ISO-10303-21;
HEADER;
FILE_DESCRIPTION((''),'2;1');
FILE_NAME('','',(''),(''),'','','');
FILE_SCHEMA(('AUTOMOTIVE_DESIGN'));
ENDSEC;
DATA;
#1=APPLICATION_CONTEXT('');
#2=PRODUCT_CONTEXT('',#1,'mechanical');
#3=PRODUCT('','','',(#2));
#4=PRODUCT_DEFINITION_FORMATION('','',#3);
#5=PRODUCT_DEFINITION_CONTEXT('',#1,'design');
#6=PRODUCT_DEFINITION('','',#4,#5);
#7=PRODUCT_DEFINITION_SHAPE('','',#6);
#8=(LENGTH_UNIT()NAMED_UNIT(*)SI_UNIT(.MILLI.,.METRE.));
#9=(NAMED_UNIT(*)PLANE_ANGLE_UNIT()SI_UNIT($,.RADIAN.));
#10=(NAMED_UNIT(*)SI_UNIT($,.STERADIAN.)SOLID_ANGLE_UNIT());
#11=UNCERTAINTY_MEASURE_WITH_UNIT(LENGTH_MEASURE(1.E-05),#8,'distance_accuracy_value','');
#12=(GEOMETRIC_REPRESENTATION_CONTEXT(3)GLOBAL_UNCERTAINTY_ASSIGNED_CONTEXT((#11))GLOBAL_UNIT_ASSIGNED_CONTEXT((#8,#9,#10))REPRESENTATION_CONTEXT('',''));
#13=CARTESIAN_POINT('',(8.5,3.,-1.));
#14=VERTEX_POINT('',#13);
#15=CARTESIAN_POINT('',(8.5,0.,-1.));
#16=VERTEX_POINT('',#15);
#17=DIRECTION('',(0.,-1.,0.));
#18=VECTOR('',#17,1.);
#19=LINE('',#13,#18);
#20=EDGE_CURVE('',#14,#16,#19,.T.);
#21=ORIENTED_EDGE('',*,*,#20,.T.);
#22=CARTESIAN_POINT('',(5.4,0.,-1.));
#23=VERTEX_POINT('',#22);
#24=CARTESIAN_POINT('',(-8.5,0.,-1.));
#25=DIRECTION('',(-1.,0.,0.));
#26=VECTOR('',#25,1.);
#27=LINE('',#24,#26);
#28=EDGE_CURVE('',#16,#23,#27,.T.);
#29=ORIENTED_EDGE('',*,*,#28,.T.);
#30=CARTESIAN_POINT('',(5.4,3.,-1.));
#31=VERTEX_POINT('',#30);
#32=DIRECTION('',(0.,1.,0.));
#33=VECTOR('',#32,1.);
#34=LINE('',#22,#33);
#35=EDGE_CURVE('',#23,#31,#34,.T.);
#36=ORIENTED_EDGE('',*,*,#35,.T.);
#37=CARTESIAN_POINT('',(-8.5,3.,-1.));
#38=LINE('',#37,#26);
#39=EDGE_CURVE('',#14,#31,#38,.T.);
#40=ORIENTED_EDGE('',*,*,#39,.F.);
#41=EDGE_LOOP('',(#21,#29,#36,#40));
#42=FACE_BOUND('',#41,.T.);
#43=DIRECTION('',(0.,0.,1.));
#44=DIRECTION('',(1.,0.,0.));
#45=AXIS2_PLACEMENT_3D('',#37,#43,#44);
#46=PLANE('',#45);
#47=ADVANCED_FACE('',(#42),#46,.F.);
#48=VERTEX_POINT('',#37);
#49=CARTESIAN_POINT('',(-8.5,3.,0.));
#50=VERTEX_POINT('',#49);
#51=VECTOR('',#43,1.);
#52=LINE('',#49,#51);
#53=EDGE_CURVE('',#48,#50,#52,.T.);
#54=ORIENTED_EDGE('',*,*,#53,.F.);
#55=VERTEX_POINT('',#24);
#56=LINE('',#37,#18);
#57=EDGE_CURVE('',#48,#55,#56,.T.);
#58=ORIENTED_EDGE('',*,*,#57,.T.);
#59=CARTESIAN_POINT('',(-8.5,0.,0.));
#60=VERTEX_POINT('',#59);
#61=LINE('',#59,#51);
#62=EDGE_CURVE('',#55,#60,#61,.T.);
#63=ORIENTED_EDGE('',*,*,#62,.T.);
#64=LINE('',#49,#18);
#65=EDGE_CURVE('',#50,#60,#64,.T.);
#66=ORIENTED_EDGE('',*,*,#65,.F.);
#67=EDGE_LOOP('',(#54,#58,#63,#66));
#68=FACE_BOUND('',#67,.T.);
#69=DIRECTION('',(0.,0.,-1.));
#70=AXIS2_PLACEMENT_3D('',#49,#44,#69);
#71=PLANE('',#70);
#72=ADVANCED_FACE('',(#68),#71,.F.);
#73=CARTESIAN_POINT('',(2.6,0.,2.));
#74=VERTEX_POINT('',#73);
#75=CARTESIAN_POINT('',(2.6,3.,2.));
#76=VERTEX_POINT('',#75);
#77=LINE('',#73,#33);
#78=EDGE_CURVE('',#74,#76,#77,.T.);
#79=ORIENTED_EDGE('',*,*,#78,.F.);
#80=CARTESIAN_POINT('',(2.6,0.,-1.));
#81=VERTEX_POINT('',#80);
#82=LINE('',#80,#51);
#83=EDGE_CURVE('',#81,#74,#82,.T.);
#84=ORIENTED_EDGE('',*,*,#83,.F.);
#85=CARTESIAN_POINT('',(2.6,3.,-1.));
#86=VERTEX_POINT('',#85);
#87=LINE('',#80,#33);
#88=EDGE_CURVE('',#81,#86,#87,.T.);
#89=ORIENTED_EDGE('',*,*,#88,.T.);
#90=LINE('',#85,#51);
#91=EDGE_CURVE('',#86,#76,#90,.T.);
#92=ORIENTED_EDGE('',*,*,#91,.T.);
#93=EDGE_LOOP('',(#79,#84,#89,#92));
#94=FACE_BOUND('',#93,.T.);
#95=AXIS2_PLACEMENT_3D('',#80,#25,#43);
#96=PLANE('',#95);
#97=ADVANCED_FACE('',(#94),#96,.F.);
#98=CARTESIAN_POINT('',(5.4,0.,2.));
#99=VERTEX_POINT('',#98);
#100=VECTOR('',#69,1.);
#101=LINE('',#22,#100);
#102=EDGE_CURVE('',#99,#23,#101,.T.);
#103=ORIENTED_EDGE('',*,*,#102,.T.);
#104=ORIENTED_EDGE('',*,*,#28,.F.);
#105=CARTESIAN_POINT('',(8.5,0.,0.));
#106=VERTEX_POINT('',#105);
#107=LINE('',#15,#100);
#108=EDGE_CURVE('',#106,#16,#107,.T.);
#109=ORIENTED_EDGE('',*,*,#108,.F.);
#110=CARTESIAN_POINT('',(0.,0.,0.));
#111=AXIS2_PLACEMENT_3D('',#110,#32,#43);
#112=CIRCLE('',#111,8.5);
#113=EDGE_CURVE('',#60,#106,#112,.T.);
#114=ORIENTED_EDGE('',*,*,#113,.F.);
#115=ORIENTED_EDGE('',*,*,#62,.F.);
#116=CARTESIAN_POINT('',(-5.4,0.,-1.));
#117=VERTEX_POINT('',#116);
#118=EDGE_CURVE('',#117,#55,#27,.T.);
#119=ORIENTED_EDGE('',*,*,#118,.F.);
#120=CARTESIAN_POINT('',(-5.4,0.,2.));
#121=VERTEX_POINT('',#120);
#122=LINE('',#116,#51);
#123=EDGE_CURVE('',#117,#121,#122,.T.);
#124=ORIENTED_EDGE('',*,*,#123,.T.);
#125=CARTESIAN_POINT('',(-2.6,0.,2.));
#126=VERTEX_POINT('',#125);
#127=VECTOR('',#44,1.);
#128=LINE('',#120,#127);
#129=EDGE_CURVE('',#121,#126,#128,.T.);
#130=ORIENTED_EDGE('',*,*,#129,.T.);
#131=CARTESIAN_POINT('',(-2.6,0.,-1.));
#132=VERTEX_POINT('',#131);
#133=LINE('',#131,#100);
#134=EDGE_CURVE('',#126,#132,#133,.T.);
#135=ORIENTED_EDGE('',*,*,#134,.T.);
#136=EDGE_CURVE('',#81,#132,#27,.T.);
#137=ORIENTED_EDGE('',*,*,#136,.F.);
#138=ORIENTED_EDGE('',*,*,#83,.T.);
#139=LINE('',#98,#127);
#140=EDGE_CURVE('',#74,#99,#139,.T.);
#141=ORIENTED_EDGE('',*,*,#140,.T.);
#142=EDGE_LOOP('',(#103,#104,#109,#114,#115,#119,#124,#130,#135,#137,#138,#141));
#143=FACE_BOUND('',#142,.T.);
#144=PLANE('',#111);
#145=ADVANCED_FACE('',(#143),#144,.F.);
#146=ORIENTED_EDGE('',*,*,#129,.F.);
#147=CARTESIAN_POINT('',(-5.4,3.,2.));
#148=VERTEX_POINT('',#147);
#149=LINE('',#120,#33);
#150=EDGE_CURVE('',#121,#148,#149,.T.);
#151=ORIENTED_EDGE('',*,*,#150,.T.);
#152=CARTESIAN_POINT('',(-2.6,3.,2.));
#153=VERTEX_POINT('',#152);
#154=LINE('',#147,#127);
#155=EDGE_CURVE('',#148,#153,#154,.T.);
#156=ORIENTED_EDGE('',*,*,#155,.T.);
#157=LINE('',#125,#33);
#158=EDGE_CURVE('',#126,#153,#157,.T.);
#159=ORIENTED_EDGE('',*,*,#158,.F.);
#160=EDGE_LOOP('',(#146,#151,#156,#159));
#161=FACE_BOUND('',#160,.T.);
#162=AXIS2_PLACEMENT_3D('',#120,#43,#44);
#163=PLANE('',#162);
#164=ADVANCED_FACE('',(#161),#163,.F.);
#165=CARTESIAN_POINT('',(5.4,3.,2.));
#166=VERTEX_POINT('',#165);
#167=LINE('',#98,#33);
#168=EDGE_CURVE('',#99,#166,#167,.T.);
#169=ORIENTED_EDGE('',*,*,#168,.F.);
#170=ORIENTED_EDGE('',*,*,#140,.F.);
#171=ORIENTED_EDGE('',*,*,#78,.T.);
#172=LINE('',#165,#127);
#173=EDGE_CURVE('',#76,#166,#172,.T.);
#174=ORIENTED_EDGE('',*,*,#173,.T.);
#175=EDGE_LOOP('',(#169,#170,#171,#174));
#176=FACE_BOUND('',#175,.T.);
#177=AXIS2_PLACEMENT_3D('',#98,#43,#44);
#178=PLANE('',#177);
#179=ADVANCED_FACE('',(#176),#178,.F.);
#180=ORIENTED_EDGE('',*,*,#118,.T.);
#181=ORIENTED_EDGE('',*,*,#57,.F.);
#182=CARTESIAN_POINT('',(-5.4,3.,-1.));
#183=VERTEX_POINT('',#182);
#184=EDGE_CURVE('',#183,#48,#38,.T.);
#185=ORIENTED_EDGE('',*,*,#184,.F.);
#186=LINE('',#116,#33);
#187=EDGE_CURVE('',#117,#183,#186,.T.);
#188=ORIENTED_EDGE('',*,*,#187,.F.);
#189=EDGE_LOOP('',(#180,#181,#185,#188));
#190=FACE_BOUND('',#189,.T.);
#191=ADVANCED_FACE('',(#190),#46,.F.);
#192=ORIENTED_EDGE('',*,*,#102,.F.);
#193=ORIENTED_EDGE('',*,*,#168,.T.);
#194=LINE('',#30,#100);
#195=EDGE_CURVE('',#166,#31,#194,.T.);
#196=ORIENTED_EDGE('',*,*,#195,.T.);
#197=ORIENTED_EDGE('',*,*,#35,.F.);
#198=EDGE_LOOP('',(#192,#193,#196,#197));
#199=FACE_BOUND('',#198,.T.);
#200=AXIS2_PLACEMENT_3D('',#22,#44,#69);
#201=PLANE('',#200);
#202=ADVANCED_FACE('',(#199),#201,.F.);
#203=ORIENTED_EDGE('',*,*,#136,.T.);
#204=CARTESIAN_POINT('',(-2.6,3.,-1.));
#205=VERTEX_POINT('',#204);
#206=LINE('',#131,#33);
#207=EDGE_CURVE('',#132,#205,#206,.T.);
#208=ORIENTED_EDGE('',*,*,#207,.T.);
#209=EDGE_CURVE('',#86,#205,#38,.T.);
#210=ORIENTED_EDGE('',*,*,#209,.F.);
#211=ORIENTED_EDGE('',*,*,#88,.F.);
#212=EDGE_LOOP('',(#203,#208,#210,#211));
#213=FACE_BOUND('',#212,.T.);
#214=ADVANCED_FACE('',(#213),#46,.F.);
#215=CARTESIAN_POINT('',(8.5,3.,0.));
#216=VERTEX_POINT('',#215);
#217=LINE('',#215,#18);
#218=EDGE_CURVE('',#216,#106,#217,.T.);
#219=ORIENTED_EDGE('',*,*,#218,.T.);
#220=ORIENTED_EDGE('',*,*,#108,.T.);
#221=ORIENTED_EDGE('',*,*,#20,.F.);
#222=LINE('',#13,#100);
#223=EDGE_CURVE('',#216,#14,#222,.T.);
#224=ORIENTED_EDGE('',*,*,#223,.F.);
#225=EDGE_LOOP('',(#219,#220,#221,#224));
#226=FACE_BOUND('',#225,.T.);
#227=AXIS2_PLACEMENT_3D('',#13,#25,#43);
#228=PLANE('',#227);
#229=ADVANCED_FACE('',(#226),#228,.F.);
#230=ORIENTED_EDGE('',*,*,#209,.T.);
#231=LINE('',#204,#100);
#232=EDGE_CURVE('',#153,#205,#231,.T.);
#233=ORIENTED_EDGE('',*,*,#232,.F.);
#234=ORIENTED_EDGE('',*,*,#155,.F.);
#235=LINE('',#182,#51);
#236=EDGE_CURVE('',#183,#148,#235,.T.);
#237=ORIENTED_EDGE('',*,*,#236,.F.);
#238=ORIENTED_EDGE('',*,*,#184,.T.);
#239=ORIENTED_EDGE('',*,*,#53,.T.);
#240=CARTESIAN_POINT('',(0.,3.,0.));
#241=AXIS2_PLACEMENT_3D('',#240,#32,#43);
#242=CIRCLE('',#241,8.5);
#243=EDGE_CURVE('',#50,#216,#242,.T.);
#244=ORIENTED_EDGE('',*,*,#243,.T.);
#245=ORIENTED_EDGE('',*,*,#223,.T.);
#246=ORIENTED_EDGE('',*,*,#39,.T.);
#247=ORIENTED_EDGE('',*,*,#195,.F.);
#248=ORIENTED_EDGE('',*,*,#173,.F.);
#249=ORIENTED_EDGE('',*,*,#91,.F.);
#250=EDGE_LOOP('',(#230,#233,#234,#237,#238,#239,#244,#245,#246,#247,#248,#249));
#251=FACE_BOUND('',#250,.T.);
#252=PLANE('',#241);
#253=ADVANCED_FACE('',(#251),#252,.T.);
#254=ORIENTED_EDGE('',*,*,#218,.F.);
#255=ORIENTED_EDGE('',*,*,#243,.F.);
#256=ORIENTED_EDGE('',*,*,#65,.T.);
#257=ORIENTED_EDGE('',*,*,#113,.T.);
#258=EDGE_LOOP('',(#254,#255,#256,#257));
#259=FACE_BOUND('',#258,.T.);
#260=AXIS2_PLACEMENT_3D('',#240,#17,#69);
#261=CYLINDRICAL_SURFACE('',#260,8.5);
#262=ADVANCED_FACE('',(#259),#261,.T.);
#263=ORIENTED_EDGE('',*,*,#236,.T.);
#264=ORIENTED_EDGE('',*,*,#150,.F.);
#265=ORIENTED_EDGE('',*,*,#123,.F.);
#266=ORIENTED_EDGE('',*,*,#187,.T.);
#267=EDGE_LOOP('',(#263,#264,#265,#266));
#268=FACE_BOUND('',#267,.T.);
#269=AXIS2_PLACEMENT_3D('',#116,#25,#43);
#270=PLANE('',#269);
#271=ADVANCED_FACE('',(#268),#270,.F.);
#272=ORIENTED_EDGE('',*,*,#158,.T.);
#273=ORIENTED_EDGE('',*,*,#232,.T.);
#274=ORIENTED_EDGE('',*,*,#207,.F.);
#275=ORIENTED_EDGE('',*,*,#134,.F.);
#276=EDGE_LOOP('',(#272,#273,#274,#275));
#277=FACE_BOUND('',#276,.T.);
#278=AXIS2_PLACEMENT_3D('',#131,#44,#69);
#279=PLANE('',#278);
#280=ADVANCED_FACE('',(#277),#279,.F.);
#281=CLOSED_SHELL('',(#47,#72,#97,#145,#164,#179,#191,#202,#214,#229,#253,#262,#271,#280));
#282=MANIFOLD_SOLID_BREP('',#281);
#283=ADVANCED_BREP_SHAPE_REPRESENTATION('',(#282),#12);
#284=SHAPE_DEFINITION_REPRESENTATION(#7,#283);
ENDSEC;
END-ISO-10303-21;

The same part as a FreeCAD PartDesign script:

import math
import FreeCAD as App
import Part
import Sketcher

V = App.Vector


def add_polygon(sketch, points):
    """Adds a closed chain of lines whose ends are joined by coincident constraints."""
    first, n = sketch.GeometryCount, len(points)
    for a, b in zip(points, points[1:] + points[:1]):
        sketch.addGeometry(Part.LineSegment(App.Vector(*a, 0), App.Vector(*b, 0)), False)
    for i in range(n):
        sketch.addConstraint(Sketcher.Constraint("Coincident", first + i, 2, first + (i + 1) % n, 1))

doc = App.newDocument("Part")
params = doc.addObject("Spreadsheet::Sheet", "Params")
for row, (alias, value) in enumerate([
    ("sketch1_radius", "8.5 mm"),
    ("sketch1_height", "1 mm"),
    ("pad1_length", "3 mm"),
    ("sketch2_height", "3 mm"),
    ("sketch2_width", "2.8 mm"),
], start=1):
    params.set(f"A{row}", alias)
    params.set(f"B{row}", "=" + value)
    params.setAlias(f"B{row}", alias)

body = doc.addObject("PartDesign::Body", "Body")

sketch1 = body.newObject("Sketcher::SketchObject", "Sketch")
sketch1.AttachmentSupport = (doc.getObject("XZ_Plane"), [""])
sketch1.MapMode = "FlatFace"
sketch1.addGeometry(Part.LineSegment(V(-8.5, -1, 0), V(-8.5, 0, 0)), False)
sketch1.addGeometry(Part.ArcOfCircle(Part.Circle(V(0, 0, 0), V(0, 0, 1), 8.5), math.radians(0), math.radians(180)), False)
sketch1.addGeometry(Part.LineSegment(V(8.5, 0, 0), V(8.5, -1, 0)), False)
sketch1.addGeometry(Part.LineSegment(V(8.5, -1, 0), V(-8.5, -1, 0)), False)
sketch1.addConstraint(Sketcher.Constraint("Tangent", 0, 2, 1, 2))
sketch1.addConstraint(Sketcher.Constraint("Tangent", 1, 1, 2, 1))
sketch1.addConstraint(Sketcher.Constraint("Coincident", 2, 2, 3, 1))
sketch1.addConstraint(Sketcher.Constraint("Coincident", 3, 2, 0, 1))
sketch1.addConstraint(Sketcher.Constraint("Vertical", 0))
sketch1.addConstraint(Sketcher.Constraint("Vertical", 2))
sketch1.addConstraint(Sketcher.Constraint("Horizontal", 3))
sketch1.addConstraint(Sketcher.Constraint("Coincident", 1, 3, -1, 1))
sketch1.addConstraint(Sketcher.Constraint("Radius", 1, 8.5))
sketch1.addConstraint(Sketcher.Constraint("DistanceY", 0, 1, 0, 2, 1.0))
sketch1.setExpression("Constraints[8]", "Params.sketch1_radius")
sketch1.setExpression("Constraints[9]", "Params.sketch1_height")
pad1 = body.newObject("PartDesign::Pad", "Pad")
pad1.Profile = sketch1
pad1.setExpression("Length", "Params.pad1_length")
pad1.Reversed = True

sketch2 = body.newObject("Sketcher::SketchObject", "Sketch001")
sketch2.AttachmentSupport = (doc.getObject("XZ_Plane"), [""])
sketch2.MapMode = "FlatFace"
sketch2.AttachmentOffset = App.Placement(V(0, 0, -3), App.Rotation())
add_polygon(sketch2, [(-5.4, -1), (-5.4, 2), (-2.6, 2), (-2.6, -1)])
add_polygon(sketch2, [(2.6, -1), (2.6, 2), (5.4, 2), (5.4, -1)])
sketch2.addConstraint(Sketcher.Constraint("Vertical", 0))
sketch2.addConstraint(Sketcher.Constraint("Horizontal", 1))
sketch2.addConstraint(Sketcher.Constraint("Vertical", 2))
sketch2.addConstraint(Sketcher.Constraint("Horizontal", 3))
sketch2.addConstraint(Sketcher.Constraint("Vertical", 4))
sketch2.addConstraint(Sketcher.Constraint("Horizontal", 5))
sketch2.addConstraint(Sketcher.Constraint("Vertical", 6))
sketch2.addConstraint(Sketcher.Constraint("Horizontal", 7))
sketch2.addConstraint(Sketcher.Constraint("Symmetric", 1, 2, 4, 2, -2))
sketch2.addConstraint(Sketcher.Constraint("Symmetric", 3, 2, 6, 2, -2))
sketch2.addConstraint(Sketcher.Constraint("DistanceY", 0, 1, 0, 2, 3.0))
sketch2.addConstraint(Sketcher.Constraint("DistanceX", 1, 1, 1, 2, 2.8))
sketch2.addConstraint(Sketcher.Constraint("DistanceY", -1, 1, 0, 2, 2.0))
sketch2.addConstraint(Sketcher.Constraint("DistanceX", 0, 2, 4, 2, 8.0))
sketch2.setExpression("Constraints[18]", "Params.sketch2_height")
sketch2.setExpression("Constraints[19]", "Params.sketch2_width")
pocket1 = body.newObject("PartDesign::Pocket", "Pocket")
pocket1.Profile = sketch2
pocket1.Type = "ThroughAll"
pocket1.Reversed = True

doc.recompute()
